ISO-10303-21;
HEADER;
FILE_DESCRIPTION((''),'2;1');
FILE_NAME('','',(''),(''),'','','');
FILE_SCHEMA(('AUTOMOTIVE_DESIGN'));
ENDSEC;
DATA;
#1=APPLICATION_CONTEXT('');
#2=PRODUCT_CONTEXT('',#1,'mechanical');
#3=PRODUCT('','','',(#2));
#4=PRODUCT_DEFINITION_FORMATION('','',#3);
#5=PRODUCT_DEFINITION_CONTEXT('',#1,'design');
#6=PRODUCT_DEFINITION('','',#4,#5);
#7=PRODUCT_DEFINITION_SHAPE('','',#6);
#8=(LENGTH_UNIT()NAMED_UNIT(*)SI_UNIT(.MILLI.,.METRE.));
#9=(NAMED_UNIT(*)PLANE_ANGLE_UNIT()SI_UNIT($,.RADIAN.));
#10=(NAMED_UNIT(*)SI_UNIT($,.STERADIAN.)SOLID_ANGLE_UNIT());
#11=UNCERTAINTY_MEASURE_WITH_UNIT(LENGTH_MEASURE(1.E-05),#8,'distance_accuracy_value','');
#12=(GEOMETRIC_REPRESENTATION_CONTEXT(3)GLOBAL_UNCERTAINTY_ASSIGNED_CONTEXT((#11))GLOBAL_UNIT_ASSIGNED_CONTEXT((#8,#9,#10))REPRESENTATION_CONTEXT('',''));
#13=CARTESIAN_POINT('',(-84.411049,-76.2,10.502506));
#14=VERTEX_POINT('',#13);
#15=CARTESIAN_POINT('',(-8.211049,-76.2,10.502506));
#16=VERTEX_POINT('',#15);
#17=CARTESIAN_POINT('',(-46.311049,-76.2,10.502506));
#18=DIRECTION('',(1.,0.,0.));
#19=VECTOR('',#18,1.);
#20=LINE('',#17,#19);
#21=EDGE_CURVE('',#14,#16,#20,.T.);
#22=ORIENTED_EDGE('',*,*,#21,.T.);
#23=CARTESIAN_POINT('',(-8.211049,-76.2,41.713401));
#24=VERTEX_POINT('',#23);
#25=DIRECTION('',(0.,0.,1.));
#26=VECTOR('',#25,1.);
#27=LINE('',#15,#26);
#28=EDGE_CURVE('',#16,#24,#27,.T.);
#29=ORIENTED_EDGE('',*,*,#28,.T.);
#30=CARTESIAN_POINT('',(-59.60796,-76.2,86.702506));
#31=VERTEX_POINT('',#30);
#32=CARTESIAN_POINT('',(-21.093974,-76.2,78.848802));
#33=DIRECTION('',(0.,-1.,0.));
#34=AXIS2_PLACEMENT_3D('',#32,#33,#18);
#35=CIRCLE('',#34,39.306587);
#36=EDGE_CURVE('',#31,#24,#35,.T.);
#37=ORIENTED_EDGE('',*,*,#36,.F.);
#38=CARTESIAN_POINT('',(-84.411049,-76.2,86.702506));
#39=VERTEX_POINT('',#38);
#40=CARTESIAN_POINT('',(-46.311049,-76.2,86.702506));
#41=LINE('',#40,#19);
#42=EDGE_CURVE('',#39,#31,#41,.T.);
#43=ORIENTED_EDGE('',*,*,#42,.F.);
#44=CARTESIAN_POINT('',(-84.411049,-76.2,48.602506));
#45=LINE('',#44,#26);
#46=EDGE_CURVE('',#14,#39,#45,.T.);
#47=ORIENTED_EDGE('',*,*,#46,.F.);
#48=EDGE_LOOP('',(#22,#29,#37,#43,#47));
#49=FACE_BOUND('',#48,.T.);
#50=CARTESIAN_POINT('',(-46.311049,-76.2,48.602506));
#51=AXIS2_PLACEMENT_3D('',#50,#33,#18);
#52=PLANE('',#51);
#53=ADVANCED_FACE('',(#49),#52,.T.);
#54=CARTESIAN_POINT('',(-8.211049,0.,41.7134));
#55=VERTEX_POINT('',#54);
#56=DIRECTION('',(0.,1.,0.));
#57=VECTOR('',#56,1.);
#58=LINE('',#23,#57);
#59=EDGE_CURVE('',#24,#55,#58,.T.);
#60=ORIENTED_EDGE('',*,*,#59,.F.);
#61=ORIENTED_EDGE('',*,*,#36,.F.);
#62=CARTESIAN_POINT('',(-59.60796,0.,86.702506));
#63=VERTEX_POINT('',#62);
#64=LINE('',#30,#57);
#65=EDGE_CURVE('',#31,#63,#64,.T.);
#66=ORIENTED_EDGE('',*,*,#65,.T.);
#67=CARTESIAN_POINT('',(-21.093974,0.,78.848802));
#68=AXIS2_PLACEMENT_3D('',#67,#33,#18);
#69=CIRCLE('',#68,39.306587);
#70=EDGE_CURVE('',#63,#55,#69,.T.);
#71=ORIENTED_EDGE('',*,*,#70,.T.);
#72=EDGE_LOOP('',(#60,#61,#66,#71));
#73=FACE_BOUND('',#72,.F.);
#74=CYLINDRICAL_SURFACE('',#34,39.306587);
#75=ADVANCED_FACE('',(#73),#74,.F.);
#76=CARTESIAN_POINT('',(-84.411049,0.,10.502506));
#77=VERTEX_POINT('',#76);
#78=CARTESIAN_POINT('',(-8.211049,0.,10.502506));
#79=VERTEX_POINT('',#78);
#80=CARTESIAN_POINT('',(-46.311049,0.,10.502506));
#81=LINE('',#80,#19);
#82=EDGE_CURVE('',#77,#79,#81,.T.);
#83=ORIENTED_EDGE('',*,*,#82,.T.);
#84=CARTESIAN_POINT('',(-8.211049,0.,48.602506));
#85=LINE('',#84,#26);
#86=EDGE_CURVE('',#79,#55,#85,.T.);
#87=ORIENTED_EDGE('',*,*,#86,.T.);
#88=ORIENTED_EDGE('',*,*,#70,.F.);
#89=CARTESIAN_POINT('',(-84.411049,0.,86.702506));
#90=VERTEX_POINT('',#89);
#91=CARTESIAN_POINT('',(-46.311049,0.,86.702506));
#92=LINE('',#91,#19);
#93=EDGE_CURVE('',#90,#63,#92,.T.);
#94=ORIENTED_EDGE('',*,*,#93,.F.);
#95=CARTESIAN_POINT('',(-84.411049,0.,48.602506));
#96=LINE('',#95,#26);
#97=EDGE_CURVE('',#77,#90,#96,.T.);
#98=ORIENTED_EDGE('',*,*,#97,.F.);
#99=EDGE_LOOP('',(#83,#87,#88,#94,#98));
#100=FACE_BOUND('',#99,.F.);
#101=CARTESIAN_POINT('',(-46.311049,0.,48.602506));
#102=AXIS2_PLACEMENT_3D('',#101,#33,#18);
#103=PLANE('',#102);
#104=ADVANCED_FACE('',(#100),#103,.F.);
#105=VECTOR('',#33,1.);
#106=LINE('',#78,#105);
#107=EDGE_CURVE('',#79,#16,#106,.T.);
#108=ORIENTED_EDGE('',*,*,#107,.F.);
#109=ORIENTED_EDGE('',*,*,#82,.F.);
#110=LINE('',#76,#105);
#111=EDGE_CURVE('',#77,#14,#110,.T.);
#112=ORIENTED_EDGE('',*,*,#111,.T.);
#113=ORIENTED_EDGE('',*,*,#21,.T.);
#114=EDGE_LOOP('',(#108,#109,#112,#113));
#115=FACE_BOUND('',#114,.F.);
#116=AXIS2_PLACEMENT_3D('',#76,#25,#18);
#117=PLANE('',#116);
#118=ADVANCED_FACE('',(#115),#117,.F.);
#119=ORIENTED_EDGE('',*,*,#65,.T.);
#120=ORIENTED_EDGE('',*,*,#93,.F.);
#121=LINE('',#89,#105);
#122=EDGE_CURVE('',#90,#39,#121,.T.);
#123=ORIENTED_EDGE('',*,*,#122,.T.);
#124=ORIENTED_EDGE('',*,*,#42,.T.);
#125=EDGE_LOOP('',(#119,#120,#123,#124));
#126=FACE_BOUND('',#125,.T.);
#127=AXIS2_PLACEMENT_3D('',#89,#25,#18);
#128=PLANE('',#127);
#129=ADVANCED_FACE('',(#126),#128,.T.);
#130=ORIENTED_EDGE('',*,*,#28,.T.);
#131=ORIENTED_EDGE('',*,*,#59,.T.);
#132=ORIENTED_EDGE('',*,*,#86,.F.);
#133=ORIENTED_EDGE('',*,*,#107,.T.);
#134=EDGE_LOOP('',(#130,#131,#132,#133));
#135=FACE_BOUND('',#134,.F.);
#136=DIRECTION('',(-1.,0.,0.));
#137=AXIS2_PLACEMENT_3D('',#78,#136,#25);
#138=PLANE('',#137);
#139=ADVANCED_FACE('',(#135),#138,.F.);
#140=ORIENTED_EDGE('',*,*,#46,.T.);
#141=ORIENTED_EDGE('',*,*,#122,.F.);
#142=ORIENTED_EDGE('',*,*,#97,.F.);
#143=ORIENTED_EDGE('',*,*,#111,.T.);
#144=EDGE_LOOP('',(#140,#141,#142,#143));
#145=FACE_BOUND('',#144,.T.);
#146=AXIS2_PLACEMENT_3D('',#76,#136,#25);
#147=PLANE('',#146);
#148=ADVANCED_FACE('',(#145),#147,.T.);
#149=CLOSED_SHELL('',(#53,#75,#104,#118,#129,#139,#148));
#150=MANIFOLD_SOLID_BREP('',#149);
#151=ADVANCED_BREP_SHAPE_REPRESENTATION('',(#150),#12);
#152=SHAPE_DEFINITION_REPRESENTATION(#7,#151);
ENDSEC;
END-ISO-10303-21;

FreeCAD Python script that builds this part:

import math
import FreeCAD as App
import Part
import Sketcher

V = App.Vector
Q = App.Units.Quantity


def add_polygon(sketch, points):
    """Adds a closed chain of lines whose ends are joined by coincident constraints."""
    first, n = sketch.GeometryCount, len(points)
    for a, b in zip(points, points[1:] + points[:1]):
        sketch.addGeometry(Part.LineSegment(App.Vector(*a, 0), App.Vector(*b, 0)), False)
    for i in range(n):
        sketch.addConstraint(Sketcher.Constraint("Coincident", first + i, 2, first + (i + 1) % n, 1))

doc = App.newDocument("Part")
params = doc.addObject("Spreadsheet::Sheet", "Params")
for row, (alias, value) in enumerate([
    ("sketch1_width", "3 in"),
    ("pad1_length", "3 in"),
    ("pocket1_length", "4 in"),
], start=1):
    params.set(f"A{row}", alias)
    params.set(f"B{row}", "=" + value)
    params.setAlias(f"B{row}", alias)

body = doc.addObject("PartDesign::Body", "Body")

# Sketch on XZ plane
sketch1 = doc.addObject("Sketcher::SketchObject", "Sketch")
body.addObject(sketch1)
sketch1.AttachmentSupport = (doc.XZ_Plane, [""])
sketch1.MapMode = "FlatFace"
add_polygon(sketch1, [(-84.411049, 86.702506), (-84.411049, 10.502506), (-8.211049, 10.502506), (-8.211049, 86.702506)])  # lines 0-3
sketch1.addConstraint([
    Sketcher.Constraint("Vertical", 0),
    Sketcher.Constraint("Horizontal", 1),
    Sketcher.Constraint("Vertical", 2),
    Sketcher.Constraint("Horizontal", 3),
    Sketcher.Constraint("Equal", 3, 0),
    Sketcher.Constraint("DistanceX", 1, 1, 1, 2, Q("3 in")),
    Sketcher.Constraint("DistanceX", 0, 2, -1, 1, 84.411049),
    Sketcher.Constraint("DistanceY", -1, 1, 0, 2, 10.502506),
])
sketch1.setExpression("Constraints[9]", "Params.sketch1_width")
pad1 = doc.addObject("PartDesign::Pad", "Pad")
body.addObject(pad1)
pad1.Profile = sketch1
pad1.setExpression("Length", "Params.pad1_length")

# Sketch on XZ plane
sketch2 = doc.addObject("Sketcher::SketchObject", "Sketch001")
body.addObject(sketch2)
sketch2.AttachmentSupport = (doc.XZ_Plane, [""])
sketch2.MapMode = "FlatFace"
sketch2.AttachmentOffset = App.Placement(V(0, 0, 3 * 25.4), App.Rotation())
sketch2.addGeometry([
    Part.LineSegment(V(-8.211049, 41.7134, 0), V(-8.211049, 41.713401, 0)),
    Part.ArcOfCircle(Part.Circle(V(-21.093975, 78.848802, 0), V(0, 0, 1), 39.306588), math.radians(-70.867438), math.radians(0)),
    Part.ArcOfCircle(Part.Circle(V(-21.093974, 78.848801, 0), V(0, 0, 1), 39.306587), math.radians(0.000001), math.radians(168.474366)),
    Part.ArcOfCircle(Part.Circle(V(-21.093974, 78.848802, 0), V(0, 0, 1), 39.306587), math.radians(168.474367), math.radians(289.132561)),
], False)
sketch2.addConstraint([
    Sketcher.Constraint("Coincident", 0, 1, 1, 1),
    Sketcher.Constraint("Tangent", 1, 2, 2, 1),
    Sketcher.Constraint("Tangent", 2, 2, 3, 1),
    Sketcher.Constraint("Coincident", 3, 2, 0, 2),
    Sketcher.Constraint("Horizontal", 0),
    Sketcher.Constraint("Coincident", 3, 3, 1, 3),
    Sketcher.Constraint("Horizontal", 3, 3, 1, 2),
    Sketcher.Constraint("Radius", 1, 39.306588),
    Sketcher.Constraint("DistanceY", -1, 1, 1, 3, 78.848802),
    Sketcher.Constraint("DistanceY", -1, 1, 0, 1, 41.7134),
    Sketcher.Constraint("DistanceX", 0, 1, -1, 1, 8.211049),
    Sketcher.Constraint("DistanceX", 2, 2, -1, 1, 59.60796),
])
pocket1 = doc.addObject("PartDesign::Pocket", "Pocket")
body.addObject(pocket1)
pocket1.Profile = sketch2
pocket1.setExpression("Length", "Params.pocket1_length")

doc.recompute()
